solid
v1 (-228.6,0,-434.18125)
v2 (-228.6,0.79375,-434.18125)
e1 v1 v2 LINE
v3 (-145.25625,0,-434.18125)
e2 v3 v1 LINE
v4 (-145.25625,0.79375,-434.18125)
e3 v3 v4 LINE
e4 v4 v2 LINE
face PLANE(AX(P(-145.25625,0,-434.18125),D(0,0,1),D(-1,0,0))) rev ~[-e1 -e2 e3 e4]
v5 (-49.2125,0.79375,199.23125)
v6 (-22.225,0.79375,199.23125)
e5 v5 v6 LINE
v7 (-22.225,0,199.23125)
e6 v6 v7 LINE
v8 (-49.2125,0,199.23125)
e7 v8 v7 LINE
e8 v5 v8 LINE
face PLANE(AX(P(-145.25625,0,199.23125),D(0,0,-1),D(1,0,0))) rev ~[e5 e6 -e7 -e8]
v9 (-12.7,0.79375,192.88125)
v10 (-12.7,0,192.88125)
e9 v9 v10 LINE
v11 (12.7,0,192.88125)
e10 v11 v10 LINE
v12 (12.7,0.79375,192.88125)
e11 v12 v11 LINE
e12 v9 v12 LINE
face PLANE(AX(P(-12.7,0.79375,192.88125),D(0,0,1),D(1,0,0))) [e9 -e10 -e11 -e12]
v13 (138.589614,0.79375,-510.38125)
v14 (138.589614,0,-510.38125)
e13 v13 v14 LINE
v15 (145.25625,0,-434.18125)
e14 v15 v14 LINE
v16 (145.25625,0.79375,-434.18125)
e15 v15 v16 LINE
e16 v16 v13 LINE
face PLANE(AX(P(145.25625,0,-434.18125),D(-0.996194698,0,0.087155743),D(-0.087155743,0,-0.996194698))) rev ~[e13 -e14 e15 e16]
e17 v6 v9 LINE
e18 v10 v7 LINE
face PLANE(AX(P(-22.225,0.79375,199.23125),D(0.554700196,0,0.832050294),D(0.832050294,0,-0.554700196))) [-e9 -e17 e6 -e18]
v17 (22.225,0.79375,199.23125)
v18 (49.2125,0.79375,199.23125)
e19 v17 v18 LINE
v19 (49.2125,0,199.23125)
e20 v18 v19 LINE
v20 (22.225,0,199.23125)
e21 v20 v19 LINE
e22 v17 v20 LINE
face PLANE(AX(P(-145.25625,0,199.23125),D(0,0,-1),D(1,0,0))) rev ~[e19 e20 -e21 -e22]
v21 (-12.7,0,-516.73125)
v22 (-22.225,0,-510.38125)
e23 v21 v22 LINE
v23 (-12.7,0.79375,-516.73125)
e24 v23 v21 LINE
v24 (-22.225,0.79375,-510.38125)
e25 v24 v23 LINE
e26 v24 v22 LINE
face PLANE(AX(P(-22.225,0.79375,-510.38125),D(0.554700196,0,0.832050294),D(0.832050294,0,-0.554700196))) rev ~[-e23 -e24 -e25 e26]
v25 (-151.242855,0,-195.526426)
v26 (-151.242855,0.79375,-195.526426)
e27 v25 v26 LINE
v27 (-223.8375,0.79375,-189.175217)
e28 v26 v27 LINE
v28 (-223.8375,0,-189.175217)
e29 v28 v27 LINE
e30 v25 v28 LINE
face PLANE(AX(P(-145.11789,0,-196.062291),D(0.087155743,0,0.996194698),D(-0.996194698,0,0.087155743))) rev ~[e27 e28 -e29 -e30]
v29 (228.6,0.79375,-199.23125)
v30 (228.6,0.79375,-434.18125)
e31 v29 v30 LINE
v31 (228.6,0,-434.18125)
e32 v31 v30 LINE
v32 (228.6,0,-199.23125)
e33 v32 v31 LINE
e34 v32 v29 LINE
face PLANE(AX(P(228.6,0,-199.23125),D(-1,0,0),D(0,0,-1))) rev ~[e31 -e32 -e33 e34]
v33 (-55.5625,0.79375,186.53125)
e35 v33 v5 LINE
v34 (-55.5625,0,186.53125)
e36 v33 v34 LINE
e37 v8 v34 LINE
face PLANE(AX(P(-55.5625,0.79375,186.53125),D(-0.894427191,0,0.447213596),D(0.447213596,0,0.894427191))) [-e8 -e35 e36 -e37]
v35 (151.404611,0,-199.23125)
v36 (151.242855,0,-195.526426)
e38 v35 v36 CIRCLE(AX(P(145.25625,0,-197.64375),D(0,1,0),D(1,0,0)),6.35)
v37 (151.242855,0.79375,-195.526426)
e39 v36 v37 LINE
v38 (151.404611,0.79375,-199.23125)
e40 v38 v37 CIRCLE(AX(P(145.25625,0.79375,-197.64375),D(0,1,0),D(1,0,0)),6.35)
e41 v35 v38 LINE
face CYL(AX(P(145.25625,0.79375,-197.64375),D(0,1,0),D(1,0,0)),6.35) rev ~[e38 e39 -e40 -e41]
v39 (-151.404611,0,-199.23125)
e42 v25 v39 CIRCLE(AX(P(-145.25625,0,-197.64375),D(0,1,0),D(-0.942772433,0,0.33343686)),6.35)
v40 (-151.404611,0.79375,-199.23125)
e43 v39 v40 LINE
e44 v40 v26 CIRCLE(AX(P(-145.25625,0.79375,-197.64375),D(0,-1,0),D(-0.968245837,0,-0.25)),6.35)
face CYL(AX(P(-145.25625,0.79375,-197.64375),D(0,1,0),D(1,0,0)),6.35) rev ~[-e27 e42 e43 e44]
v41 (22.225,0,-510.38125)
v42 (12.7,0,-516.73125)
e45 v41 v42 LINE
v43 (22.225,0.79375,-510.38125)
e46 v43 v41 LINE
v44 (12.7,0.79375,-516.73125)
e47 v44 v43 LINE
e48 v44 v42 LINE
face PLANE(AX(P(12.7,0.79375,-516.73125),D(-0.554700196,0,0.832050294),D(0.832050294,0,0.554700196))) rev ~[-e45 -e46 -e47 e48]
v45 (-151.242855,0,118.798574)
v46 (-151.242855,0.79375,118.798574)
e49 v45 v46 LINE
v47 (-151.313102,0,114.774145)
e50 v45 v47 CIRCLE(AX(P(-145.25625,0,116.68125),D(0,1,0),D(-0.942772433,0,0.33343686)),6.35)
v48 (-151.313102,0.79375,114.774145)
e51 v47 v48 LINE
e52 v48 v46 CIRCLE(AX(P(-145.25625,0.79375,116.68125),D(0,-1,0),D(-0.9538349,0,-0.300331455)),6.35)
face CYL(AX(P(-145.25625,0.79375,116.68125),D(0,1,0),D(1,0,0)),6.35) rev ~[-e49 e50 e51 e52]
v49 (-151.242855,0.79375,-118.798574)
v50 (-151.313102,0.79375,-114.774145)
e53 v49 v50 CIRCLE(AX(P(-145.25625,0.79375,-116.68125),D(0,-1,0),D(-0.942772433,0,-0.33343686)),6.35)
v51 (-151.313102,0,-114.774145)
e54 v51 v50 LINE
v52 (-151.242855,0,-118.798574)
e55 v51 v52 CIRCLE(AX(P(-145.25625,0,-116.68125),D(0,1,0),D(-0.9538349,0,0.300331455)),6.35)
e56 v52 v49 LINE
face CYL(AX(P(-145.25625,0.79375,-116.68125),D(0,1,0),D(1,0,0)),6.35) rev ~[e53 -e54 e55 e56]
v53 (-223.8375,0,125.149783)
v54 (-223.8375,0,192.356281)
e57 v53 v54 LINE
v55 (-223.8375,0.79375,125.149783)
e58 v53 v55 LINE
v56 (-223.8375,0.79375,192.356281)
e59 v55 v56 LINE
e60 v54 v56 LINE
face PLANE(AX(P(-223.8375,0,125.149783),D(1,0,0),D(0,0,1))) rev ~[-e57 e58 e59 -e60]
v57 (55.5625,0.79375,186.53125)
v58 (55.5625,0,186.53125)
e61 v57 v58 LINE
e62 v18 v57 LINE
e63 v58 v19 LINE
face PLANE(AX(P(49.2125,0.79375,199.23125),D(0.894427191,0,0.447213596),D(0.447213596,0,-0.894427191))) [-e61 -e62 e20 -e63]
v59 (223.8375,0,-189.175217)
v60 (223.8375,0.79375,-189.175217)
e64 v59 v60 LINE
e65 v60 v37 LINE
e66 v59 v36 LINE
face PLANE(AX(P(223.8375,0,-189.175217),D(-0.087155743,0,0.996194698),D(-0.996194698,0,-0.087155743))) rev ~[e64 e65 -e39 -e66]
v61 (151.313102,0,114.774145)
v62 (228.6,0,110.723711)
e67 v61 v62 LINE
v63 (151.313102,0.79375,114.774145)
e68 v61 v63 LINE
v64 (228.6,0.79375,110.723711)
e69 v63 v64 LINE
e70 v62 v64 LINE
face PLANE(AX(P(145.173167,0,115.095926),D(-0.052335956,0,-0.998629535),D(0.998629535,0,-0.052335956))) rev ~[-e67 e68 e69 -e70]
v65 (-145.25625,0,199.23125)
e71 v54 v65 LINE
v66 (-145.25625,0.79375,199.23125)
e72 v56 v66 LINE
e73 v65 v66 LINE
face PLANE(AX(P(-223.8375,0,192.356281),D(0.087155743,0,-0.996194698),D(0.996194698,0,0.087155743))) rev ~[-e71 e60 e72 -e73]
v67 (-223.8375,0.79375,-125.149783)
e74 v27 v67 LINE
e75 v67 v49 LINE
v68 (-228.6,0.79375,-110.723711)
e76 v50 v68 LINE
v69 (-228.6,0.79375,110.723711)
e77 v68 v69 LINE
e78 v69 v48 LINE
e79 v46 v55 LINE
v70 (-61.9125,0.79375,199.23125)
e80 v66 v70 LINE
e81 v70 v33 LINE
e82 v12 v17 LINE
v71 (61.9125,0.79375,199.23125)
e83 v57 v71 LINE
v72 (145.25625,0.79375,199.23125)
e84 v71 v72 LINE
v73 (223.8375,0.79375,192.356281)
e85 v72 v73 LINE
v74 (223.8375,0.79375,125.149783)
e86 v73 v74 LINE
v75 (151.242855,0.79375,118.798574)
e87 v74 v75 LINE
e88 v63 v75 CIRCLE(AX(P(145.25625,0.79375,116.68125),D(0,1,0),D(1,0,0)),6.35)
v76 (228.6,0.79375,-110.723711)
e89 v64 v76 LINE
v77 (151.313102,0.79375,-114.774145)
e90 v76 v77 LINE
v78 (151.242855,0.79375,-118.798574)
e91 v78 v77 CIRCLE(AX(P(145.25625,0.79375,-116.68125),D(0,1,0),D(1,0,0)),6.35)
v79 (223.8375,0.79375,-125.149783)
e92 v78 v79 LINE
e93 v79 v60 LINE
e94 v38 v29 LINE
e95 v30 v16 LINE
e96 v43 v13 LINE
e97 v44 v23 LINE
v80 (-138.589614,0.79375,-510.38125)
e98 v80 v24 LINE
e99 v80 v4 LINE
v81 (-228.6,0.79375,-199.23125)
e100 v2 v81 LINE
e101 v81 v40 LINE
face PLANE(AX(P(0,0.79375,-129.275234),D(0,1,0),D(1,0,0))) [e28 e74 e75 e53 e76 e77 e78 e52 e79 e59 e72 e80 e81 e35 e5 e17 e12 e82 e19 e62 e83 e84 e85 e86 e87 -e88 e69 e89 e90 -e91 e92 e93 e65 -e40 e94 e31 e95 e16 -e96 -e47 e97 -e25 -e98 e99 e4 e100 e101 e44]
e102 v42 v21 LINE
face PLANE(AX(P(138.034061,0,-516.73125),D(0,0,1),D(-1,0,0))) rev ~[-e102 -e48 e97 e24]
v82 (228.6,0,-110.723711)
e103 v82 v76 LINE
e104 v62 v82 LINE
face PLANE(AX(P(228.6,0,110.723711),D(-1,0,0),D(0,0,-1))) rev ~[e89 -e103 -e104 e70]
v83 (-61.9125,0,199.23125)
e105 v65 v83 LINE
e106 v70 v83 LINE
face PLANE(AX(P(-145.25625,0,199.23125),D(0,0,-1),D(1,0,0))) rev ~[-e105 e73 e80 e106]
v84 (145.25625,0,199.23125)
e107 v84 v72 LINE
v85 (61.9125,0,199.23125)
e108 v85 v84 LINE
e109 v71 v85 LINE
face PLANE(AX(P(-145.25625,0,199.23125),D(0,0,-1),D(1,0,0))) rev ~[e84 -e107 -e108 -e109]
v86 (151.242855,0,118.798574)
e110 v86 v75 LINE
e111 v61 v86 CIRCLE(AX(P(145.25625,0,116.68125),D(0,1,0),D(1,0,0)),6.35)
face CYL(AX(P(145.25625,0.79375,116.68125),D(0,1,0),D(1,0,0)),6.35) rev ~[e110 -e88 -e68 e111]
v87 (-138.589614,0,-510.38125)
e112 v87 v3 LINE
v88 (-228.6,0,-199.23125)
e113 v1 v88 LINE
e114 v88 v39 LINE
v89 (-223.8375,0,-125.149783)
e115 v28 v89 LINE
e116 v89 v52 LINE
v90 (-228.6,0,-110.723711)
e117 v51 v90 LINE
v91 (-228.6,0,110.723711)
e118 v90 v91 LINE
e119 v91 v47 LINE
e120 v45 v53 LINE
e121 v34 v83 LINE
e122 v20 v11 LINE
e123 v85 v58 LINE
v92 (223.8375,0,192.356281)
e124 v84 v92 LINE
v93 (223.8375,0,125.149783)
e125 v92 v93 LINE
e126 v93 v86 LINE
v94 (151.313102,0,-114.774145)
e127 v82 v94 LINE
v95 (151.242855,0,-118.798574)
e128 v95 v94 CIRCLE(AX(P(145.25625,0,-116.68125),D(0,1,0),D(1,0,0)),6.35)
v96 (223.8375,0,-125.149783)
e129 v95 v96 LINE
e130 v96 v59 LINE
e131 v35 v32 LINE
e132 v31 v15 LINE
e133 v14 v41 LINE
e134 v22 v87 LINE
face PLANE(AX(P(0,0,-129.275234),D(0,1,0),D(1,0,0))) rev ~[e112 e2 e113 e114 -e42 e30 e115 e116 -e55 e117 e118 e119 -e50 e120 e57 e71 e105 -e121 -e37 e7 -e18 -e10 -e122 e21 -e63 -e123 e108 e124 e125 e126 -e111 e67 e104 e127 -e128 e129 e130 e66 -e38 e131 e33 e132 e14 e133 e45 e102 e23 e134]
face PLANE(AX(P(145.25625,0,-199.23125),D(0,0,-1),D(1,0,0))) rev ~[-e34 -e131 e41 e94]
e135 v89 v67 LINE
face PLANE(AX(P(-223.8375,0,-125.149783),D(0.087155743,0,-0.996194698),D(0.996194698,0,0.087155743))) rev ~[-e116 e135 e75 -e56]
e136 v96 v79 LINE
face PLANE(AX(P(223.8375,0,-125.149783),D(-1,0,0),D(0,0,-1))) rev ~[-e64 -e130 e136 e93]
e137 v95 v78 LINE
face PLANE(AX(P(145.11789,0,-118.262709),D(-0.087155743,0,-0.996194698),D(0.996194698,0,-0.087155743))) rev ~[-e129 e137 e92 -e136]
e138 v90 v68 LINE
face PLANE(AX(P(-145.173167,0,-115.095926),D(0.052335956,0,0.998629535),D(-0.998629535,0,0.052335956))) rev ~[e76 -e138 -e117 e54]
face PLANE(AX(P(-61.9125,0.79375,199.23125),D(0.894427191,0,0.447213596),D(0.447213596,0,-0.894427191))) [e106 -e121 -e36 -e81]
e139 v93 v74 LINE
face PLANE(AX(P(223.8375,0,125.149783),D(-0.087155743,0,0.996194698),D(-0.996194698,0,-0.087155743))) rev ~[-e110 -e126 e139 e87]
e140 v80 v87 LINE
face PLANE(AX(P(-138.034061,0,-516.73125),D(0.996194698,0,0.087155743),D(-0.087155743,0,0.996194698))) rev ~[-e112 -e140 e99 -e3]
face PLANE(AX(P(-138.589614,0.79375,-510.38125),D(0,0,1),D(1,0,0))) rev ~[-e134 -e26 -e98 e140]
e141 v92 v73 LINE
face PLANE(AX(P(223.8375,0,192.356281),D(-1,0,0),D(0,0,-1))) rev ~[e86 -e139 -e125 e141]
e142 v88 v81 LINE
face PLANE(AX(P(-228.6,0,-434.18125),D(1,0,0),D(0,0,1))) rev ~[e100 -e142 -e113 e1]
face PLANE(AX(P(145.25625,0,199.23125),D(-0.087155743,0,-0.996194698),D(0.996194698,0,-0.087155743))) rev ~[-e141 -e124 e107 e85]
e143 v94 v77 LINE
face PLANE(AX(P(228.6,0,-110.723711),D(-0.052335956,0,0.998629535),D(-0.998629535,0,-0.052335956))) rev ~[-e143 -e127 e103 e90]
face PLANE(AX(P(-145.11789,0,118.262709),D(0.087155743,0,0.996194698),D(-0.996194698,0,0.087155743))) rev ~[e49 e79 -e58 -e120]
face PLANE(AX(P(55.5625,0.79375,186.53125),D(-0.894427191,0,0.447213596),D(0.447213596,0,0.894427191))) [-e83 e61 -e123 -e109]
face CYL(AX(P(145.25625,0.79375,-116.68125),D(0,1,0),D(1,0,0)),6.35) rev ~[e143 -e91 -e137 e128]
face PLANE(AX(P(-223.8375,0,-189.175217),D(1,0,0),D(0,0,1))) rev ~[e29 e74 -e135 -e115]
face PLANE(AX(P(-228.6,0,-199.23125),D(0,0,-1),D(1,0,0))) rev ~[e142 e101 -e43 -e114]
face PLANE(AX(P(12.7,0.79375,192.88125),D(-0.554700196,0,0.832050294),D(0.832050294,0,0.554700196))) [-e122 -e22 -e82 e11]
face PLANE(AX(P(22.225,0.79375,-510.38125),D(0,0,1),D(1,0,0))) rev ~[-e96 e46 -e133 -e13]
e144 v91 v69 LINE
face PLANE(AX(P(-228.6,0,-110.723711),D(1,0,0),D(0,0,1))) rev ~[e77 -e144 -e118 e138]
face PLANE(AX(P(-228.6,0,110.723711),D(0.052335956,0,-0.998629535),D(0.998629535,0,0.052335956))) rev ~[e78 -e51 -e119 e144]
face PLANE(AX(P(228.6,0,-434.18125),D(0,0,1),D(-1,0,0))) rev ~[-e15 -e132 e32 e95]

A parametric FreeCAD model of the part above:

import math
import FreeCAD as App
import Part
import Sketcher
Q = App.Units.Quantity


def add_polygon(sketch, points):
    """Adds a closed chain of lines whose ends are joined by coincident constraints."""
    first, n = sketch.GeometryCount, len(points)
    for a, b in zip(points, points[1:] + points[:1]):
        sketch.addGeometry(Part.LineSegment(App.Vector(*a, 0), App.Vector(*b, 0)), False)
    for i in range(n):
        sketch.addConstraint(Sketcher.Constraint("Coincident", first + i, 2, first + (i + 1) % n, 1))

doc = App.newDocument("Part")
body = doc.addObject("PartDesign::Body", "Body")

# Sketch on XZ plane
sketch1 = body.newObject("Sketcher::SketchObject", "Sketch")
sketch1.AttachmentSupport = (doc.getObject("XZ_Plane"), [""])
sketch1.MapMode = "FlatFace"
sketch1.addGeometry(Part.LineSegment(App.Vector(145.3, -434.2, 0), App.Vector(138, -516.7, 0)), False)
sketch1.addGeometry(Part.LineSegment(App.Vector(138, -516.7, 0), App.Vector(-138, -516.7, 0)), False)
sketch1.addGeometry(Part.LineSegment(App.Vector(-138, -516.7, 0), App.Vector(-145.3, -434.2, 0)), False)
sketch1.addGeometry(Part.LineSegment(App.Vector(-145.3, -434.2, 0), App.Vector(-228.6, -434.2, 0)), False)
sketch1.addGeometry(Part.LineSegment(App.Vector(-228.6, -434.2, 0), App.Vector(-228.6, -199.2, 0)), False)
sketch1.addGeometry(Part.LineSegment(App.Vector(-228.6, -199.2, 0), App.Vector(-145.3, -199.2, 0)), False)
sketch1.addGeometry(Part.ArcOfCircle(Part.Circle(App.Vector(-145.3, -197.6, 0), App.Vector(0, 0, 1), 1.6), math.radians(-90), math.radians(85)), False)
sketch1.addGeometry(Part.LineSegment(App.Vector(-145.1, -196.1, 0), App.Vector(-223.8, -189.2, 0)), False)
sketch1.addGeometry(Part.LineSegment(App.Vector(-223.8, -189.2, 0), App.Vector(-223.8, -125.1, 0)), False)
sketch1.addGeometry(Part.LineSegment(App.Vector(-223.8, -125.1, 0), App.Vector(-145.1, -118.3, 0)), False)
sketch1.addGeometry(Part.ArcOfCircle(Part.Circle(App.Vector(-145.3, -116.7, 0), App.Vector(0, 0, 1), 1.6), math.radians(-85), math.radians(87)), False)
sketch1.addGeometry(Part.LineSegment(App.Vector(-145.2, -115.1, 0), App.Vector(-228.6, -110.7, 0)), False)
sketch1.addGeometry(Part.LineSegment(App.Vector(-228.6, -110.7, 0), App.Vector(-228.6, 110.7, 0)), False)
sketch1.addGeometry(Part.LineSegment(App.Vector(-228.6, 110.7, 0), App.Vector(-145.2, 115.1, 0)), False)
sketch1.addGeometry(Part.ArcOfCircle(Part.Circle(App.Vector(-145.3, 116.7, 0), App.Vector(0, 0, 1), 1.6), math.radians(-87), math.radians(85)), False)
sketch1.addGeometry(Part.LineSegment(App.Vector(-145.1, 118.3, 0), App.Vector(-223.8, 125.1, 0)), False)
sketch1.addGeometry(Part.LineSegment(App.Vector(-223.8, 125.1, 0), App.Vector(-223.8, 192.4, 0)), False)
sketch1.addGeometry(Part.LineSegment(App.Vector(-223.8, 192.4, 0), App.Vector(-145.3, 199.2, 0)), False)
sketch1.addGeometry(Part.LineSegment(App.Vector(-145.3, 199.2, 0), App.Vector(145.3, 199.2, 0)), False)
sketch1.addGeometry(Part.LineSegment(App.Vector(145.3, 199.2, 0), App.Vector(223.8, 192.4, 0)), False)
sketch1.addGeometry(Part.LineSegment(App.Vector(223.8, 192.4, 0), App.Vector(223.8, 125.1, 0)), False)
sketch1.addGeometry(Part.LineSegment(App.Vector(223.8, 125.1, 0), App.Vector(145.1, 118.3, 0)), False)
sketch1.addGeometry(Part.ArcOfCircle(Part.Circle(App.Vector(145.3, 116.7, 0), App.Vector(0, 0, 1), 1.6), math.radians(95), math.radians(267)), False)
sketch1.addGeometry(Part.LineSegment(App.Vector(145.2, 115.1, 0), App.Vector(228.6, 110.7, 0)), False)
sketch1.addGeometry(Part.LineSegment(App.Vector(228.6, 110.7, 0), App.Vector(228.6, -110.7, 0)), False)
sketch1.addGeometry(Part.LineSegment(App.Vector(228.6, -110.7, 0), App.Vector(145.2, -115.1, 0)), False)
sketch1.addGeometry(Part.ArcOfCircle(Part.Circle(App.Vector(145.3, -116.7, 0), App.Vector(0, 0, 1), 1.6), math.radians(93), math.radians(265)), False)
sketch1.addGeometry(Part.LineSegment(App.Vector(145.1, -118.3, 0), App.Vector(223.8, -125.1, 0)), False)
sketch1.addGeometry(Part.LineSegment(App.Vector(223.8, -125.1, 0), App.Vector(223.8, -189.2, 0)), False)
sketch1.addGeometry(Part.LineSegment(App.Vector(223.8, -189.2, 0), App.Vector(145.1, -196.1, 0)), False)
sketch1.addGeometry(Part.ArcOfCircle(Part.Circle(App.Vector(145.3, -197.6, 0), App.Vector(0, 0, 1), 1.6), math.radians(95), math.radians(270)), False)
sketch1.addGeometry(Part.LineSegment(App.Vector(145.3, -199.2, 0), App.Vector(228.6, -199.2, 0)), False)
sketch1.addGeometry(Part.LineSegment(App.Vector(228.6, -199.2, 0), App.Vector(228.6, -434.2, 0)), False)
sketch1.addGeometry(Part.LineSegment(App.Vector(228.6, -434.2, 0), App.Vector(145.3, -434.2, 0)), False)
sketch1.addConstraint(Sketcher.Constraint("Coincident", 0, 2, 1, 1))
sketch1.addConstraint(Sketcher.Constraint("Coincident", 1, 2, 2, 1))
sketch1.addConstraint(Sketcher.Constraint("Coincident", 2, 2, 3, 1))
sketch1.addConstraint(Sketcher.Constraint("Coincident", 3, 2, 4, 1))
sketch1.addConstraint(Sketcher.Constraint("Coincident", 4, 2, 5, 1))
sketch1.addConstraint(Sketcher.Constraint("Tangent", 5, 2, 6, 1))
sketch1.addConstraint(Sketcher.Constraint("Tangent", 6, 2, 7, 1))
sketch1.addConstraint(Sketcher.Constraint("Coincident", 7, 2, 8, 1))
sketch1.addConstraint(Sketcher.Constraint("Coincident", 8, 2, 9, 1))
sketch1.addConstraint(Sketcher.Constraint("Tangent", 9, 2, 10, 1))
sketch1.addConstraint(Sketcher.Constraint("Tangent", 10, 2, 11, 1))
sketch1.addConstraint(Sketcher.Constraint("Coincident", 11, 2, 12, 1))
sketch1.addConstraint(Sketcher.Constraint("Coincident", 12, 2, 13, 1))
sketch1.addConstraint(Sketcher.Constraint("Tangent", 13, 2, 14, 1))
sketch1.addConstraint(Sketcher.Constraint("Tangent", 14, 2, 15, 1))
sketch1.addConstraint(Sketcher.Constraint("Coincident", 15, 2, 16, 1))
sketch1.addConstraint(Sketcher.Constraint("Coincident", 16, 2, 17, 1))
sketch1.addConstraint(Sketcher.Constraint("Coincident", 17, 2, 18, 1))
sketch1.addConstraint(Sketcher.Constraint("Coincident", 18, 2, 19, 1))
sketch1.addConstraint(Sketcher.Constraint("Coincident", 19, 2, 20, 1))
sketch1.addConstraint(Sketcher.Constraint("Coincident", 20, 2, 21, 1))
sketch1.addConstraint(Sketcher.Constraint("Tangent", 21, 2, 22, 1))
sketch1.addConstraint(Sketcher.Constraint("Tangent", 22, 2, 23, 1))
sketch1.addConstraint(Sketcher.Constraint("Coincident", 23, 2, 24, 1))
sketch1.addConstraint(Sketcher.Constraint("Coincident", 24, 2, 25, 1))
sketch1.addConstraint(Sketcher.Constraint("Tangent", 25, 2, 26, 1))
sketch1.addConstraint(Sketcher.Constraint("Tangent", 26, 2, 27, 1))
sketch1.addConstraint(Sketcher.Constraint("Coincident", 27, 2, 28, 1))
sketch1.addConstraint(Sketcher.Constraint("Coincident", 28, 2, 29, 1))
sketch1.addConstraint(Sketcher.Constraint("Tangent", 29, 2, 30, 1))
sketch1.addConstraint(Sketcher.Constraint("Tangent", 30, 2, 31, 1))
sketch1.addConstraint(Sketcher.Constraint("Coincident", 31, 2, 32, 1))
sketch1.addConstraint(Sketcher.Constraint("Coincident", 32, 2, 33, 1))
sketch1.addConstraint(Sketcher.Constraint("Coincident", 33, 2, 0, 1))
sketch1.addConstraint(Sketcher.Constraint("Horizontal", 1))
sketch1.addConstraint(Sketcher.Constraint("Horizontal", 3))
sketch1.addConstraint(Sketcher.Constraint("Vertical", 4))
sketch1.addConstraint(Sketcher.Constraint("Horizontal", 5))
sketch1.addConstraint(Sketcher.Constraint("Vertical", 8))
sketch1.addConstraint(Sketcher.Constraint("Vertical", 12))
sketch1.addConstraint(Sketcher.Constraint("Vertical", 16))
sketch1.addConstraint(Sketcher.Constraint("Horizontal", 18))
sketch1.addConstraint(Sketcher.Constraint("Vertical", 20))
sketch1.addConstraint(Sketcher.Constraint("Vertical", 24))
sketch1.addConstraint(Sketcher.Constraint("Vertical", 28))
sketch1.addConstraint(Sketcher.Constraint("Horizontal", 31))
sketch1.addConstraint(Sketcher.Constraint("Vertical", 32))
sketch1.addConstraint(Sketcher.Constraint("Horizontal", 33))
sketch1.addConstraint(Sketcher.Constraint("Equal", 6, 10))
sketch1.addConstraint(Sketcher.Constraint("Equal", 10, 14))
sketch1.addConstraint(Sketcher.Constraint("Equal", 14, 22))
sketch1.addConstraint(Sketcher.Constraint("Equal", 22, 26))
sketch1.addConstraint(Sketcher.Constraint("Equal", 26, 30))
sketch1.addConstraint(Sketcher.Constraint("Symmetric", 10, 3, 22, 3, -1, 1))
sketch1.addConstraint(Sketcher.Constraint("Symmetric", 14, 3, 26, 3, -1, 1))
sketch1.addConstraint(Sketcher.Constraint("Symmetric", 5, 2, 18, 2, -1, 1))
sketch1.addConstraint(Sketcher.Constraint("Symmetric", 8, 2, 20, 2, -1, 1))
sketch1.addConstraint(Sketcher.Constraint("Symmetric", 11, 2, 23, 2, -1, 1))
sketch1.addConstraint(Sketcher.Constraint("Symmetric", 15, 2, 27, 2, -1, 1))
sketch1.addConstraint(Sketcher.Constraint("Symmetric", 17, 2, 30, 2, -1, 1))
sketch1.addConstraint(Sketcher.Constraint("Symmetric", 14, 3, 22, 3, -2))
sketch1.addConstraint(Sketcher.Constraint("Symmetric", 16, 2, 19, 2, -2))
sketch1.addConstraint(Sketcher.Constraint("Symmetric", 3, 2, 32, 2, -2))
sketch1.addConstraint(Sketcher.Constraint("Perpendicular", 0, 7))
sketch1.addConstraint(Sketcher.Constraint("Perpendicular", 2, 9))
sketch1.addConstraint(Sketcher.Constraint("Parallel", 7, 15))
sketch1.addConstraint(Sketcher.Constraint("Parallel", 9, 17))
sketch1.addConstraint(Sketcher.Constraint("Parallel", 15, 19))
sketch1.addConstraint(Sketcher.Constraint("Parallel", 13, 25))
sketch1.addConstraint(Sketcher.Constraint("Parallel", 21, 29))
sketch1.addConstraint(Sketcher.Constraint("Horizontal", 15, 2, 20, 2))
sketch1.addConstraint(Sketcher.Constraint("Horizontal", 12, 2, 23, 2))
sketch1.addConstraint(Sketcher.Constraint("Vertical", 6, 3, 10, 3))
sketch1.addConstraint(Sketcher.Constraint("Vertical", 14, 3, 2, 2))
sketch1.addConstraint(Sketcher.Constraint("Vertical", 4, 2, 11, 2))
sketch1.addConstraint(Sketcher.Constraint("Vertical", 30, 2, 33, 2))
sketch1.addConstraint(Sketcher.Constraint("DistanceX", 3, 2, -1, 1, Q("9 in")))
sketch1.addConstraint(Sketcher.Constraint("Angle", 0, Q("-95 deg")))
sketch1.addConstraint(Sketcher.Constraint("Angle", 11, Q("177 deg")))
sketch1.addConstraint(Sketcher.Constraint("Radius", 6, Q("0.0625 in")))
sketch1.addConstraint(Sketcher.Constraint("DistanceY", 4, 1, 4, 2, Q("9.25 in")))
sketch1.addConstraint(Sketcher.Constraint("DistanceY", 2, 2, 10, 3, Q("12.5 in")))
sketch1.addConstraint(Sketcher.Constraint("DistanceX", 3, 2, 3, 1, Q("3.28125 in")))
sketch1.addConstraint(Sketcher.Constraint("DistanceY", 0, 2, 26, 3, Q("15.75 in")))
sketch1.addConstraint(Sketcher.Constraint("DistanceY", 6, 3, -1, 1, Q("7.78125 in")))
sketch1.addConstraint(Sketcher.Constraint("DistanceX", 7, 2, -1, 1, Q("8.8125 in")))
pad1 = body.newObject("PartDesign::Pad", "Pad")
pad1.Profile = sketch1
pad1.Length = Q("0.03125 in")
pad1.Reversed = True

# Sketch on XZ plane
sketch2 = body.newObject("Sketcher::SketchObject", "Sketch001")
sketch2.AttachmentSupport = (doc.getObject("XZ_Plane"), [""])
sketch2.MapMode = "FlatFace"
sketch2.AttachmentOffset = App.Placement(App.Vector(0, 0, -0.03125 * 25.4), App.Rotation())
sketch2.addGeometry(Part.Circle(App.Vector(-145, -117, 0), App.Vector(0, 0, 1), 6), False)
sketch2.addConstraint(Sketcher.Constraint("Diameter", 0, Q("0.5 in")))
sketch2.addConstraint(Sketcher.Constraint("DistanceX", 0, 3, -1, 1, Q("5.71875 in")))
sketch2.addConstraint(Sketcher.Constraint("DistanceY", 0, 3, -1, 1, Q("4.59375 in")))
pocket1 = body.newObject("PartDesign::Pocket", "Pocket")
pocket1.Profile = sketch2
pocket1.Length = Q("0.03125 in")
pocket1.Reversed = True

# Sketch on XZ plane
sketch3 = body.newObject("Sketcher::SketchObject", "Sketch002")
sketch3.AttachmentSupport = (doc.getObject("XZ_Plane"), [""])
sketch3.MapMode = "FlatFace"
sketch3.AttachmentOffset = App.Placement(App.Vector(0, 0, -0.03125 * 25.4), App.Rotation())
sketch3.addGeometry(Part.Circle(App.Vector(-145, 117, 0), App.Vector(0, 0, 1), 6), False)
sketch3.addConstraint(Sketcher.Constraint("Diameter", 0, Q("0.5 in")))
sketch3.addConstraint(Sketcher.Constraint("DistanceX", 0, 3, -1, 1, Q("5.71875 in")))
sketch3.addConstraint(Sketcher.Constraint("DistanceY", -1, 1, 0, 3, Q("4.59375 in")))
pocket2 = body.newObject("PartDesign::Pocket", "Pocket001")
pocket2.Profile = sketch3
pocket2.Length = Q("0.03125 in")
pocket2.Reversed = True

# Sketch on XZ plane
sketch4 = body.newObject("Sketcher::SketchObject", "Sketch003")
sketch4.AttachmentSupport = (doc.getObject("XZ_Plane"), [""])
sketch4.MapMode = "FlatFace"
sketch4.AttachmentOffset = App.Placement(App.Vector(0, 0, -0.03125 * 25.4), App.Rotation())
sketch4.addGeometry(Part.Circle(App.Vector(145, 117, 0), App.Vector(0, 0, 1), 6), False)
sketch4.addConstraint(Sketcher.Constraint("Diameter", 0, Q("0.5 in")))
sketch4.addConstraint(Sketcher.Constraint("DistanceX", -1, 1, 0, 3, Q("5.71875 in")))
sketch4.addConstraint(Sketcher.Constraint("DistanceY", -1, 1, 0, 3, Q("4.59375 in")))
pocket3 = body.newObject("PartDesign::Pocket", "Pocket002")
pocket3.Profile = sketch4
pocket3.Length = Q("0.03125 in")
pocket3.Reversed = True

# Sketch on XZ plane
sketch5 = body.newObject("Sketcher::SketchObject", "Sketch004")
sketch5.AttachmentSupport = (doc.getObject("XZ_Plane"), [""])
sketch5.MapMode = "FlatFace"
sketch5.AttachmentOffset = App.Placement(App.Vector(0, 0, -0.03125 * 25.4), App.Rotation())
sketch5.addGeometry(Part.Circle(App.Vector(145, -117, 0), App.Vector(0, 0, 1), 6), False)
sketch5.addConstraint(Sketcher.Constraint("Diameter", 0, Q("0.5 in")))
sketch5.addConstraint(Sketcher.Constraint("DistanceX", -1, 1, 0, 3, Q("5.71875 in")))
sketch5.addConstraint(Sketcher.Constraint("DistanceY", 0, 3, -1, 1, Q("4.59375 in")))
pocket4 = body.newObject("PartDesign::Pocket", "Pocket003")
pocket4.Profile = sketch5
pocket4.Length = Q("0.03125 in")
pocket4.Reversed = True

# Sketch on XZ plane
sketch6 = body.newObject("Sketcher::SketchObject", "Sketch005")
sketch6.AttachmentSupport = (doc.getObject("XZ_Plane"), [""])
sketch6.MapMode = "FlatFace"
sketch6.AttachmentOffset = App.Placement(App.Vector(0, 0, -0.03125 * 25.4), App.Rotation())
sketch6.addGeometry(Part.Circle(App.Vector(-145, -198, 0), App.Vector(0, 0, 1), 6), False)
sketch6.addConstraint(Sketcher.Constraint("Diameter", 0, Q("0.5 in")))
sketch6.addConstraint(Sketcher.Constraint("DistanceX", 0, 3, -1, 1, Q("5.71875 in")))
sketch6.addConstraint(Sketcher.Constraint("DistanceY", 0, 3, -1, 1, Q("7.78125 in")))
pocket5 = body.newObject("PartDesign::Pocket", "Pocket004")
pocket5.Profile = sketch6
pocket5.Length = Q("0.03125 in")
pocket5.Reversed = True

# Sketch on XZ plane
sketch7 = body.newObject("Sketcher::SketchObject", "Sketch006")
sketch7.AttachmentSupport = (doc.getObject("XZ_Plane"), [""])
sketch7.MapMode = "FlatFace"
sketch7.AttachmentOffset = App.Placement(App.Vector(0, 0, -0.03125 * 25.4), App.Rotation())
sketch7.addGeometry(Part.Circle(App.Vector(145, -198, 0), App.Vector(0, 0, 1), 6), False)
sketch7.addConstraint(Sketcher.Constraint("Diameter", 0, Q("0.5 in")))
sketch7.addConstraint(Sketcher.Constraint("DistanceX", -1, 1, 0, 3, Q("5.71875 in")))
sketch7.addConstraint(Sketcher.Constraint("DistanceY", 0, 3, -1, 1, Q("7.78125 in")))
pocket6 = body.newObject("PartDesign::Pocket", "Pocket005")
pocket6.Profile = sketch7
pocket6.Length = Q("0.03125 in")
pocket6.Reversed = True

# Sketch on XZ plane
sketch8 = body.newObject("Sketcher::SketchObject", "Sketch007")
sketch8.AttachmentSupport = (doc.getObject("XZ_Plane"), [""])
sketch8.MapMode = "FlatFace"
sketch8.AttachmentOffset = App.Placement(App.Vector(0, 0, -0.03125 * 25.4), App.Rotation())
add_polygon(sketch8, [(-139, -510), (-22, -510), (-13, -517), (-138, -517)])  # lines 0-3
sketch8.addConstraint(Sketcher.Constraint("Horizontal", 0))
sketch8.addConstraint(Sketcher.Constraint("Horizontal", 2))
sketch8.addConstraint(Sketcher.Constraint("Angle", 3, Q("95 deg")))
sketch8.addConstraint(Sketcher.Constraint("DistanceX", 1, 2, -1, 1, Q("0.5 in")))
sketch8.addConstraint(Sketcher.Constraint("DistanceY", 1, 2, 0, 2, Q("0.25 in")))
sketch8.addConstraint(Sketcher.Constraint("DistanceX", 0, 2, -1, 1, Q("0.875 in")))
sketch8.addConstraint(Sketcher.Constraint("DistanceY", 0, 2, -1, 1, Q("20.09375 in")))
sketch8.addConstraint(Sketcher.Constraint("DistanceX", 2, 2, 2, 1, Q("125.334061 mm")))
pocket7 = body.newObject("PartDesign::Pocket", "Pocket006")
pocket7.Profile = sketch8
pocket7.Type = "UpToFirst"
pocket7.Reversed = True

# Sketch on XZ plane
sketch9 = body.newObject("Sketcher::SketchObject", "Sketch008")
sketch9.AttachmentSupport = (doc.getObject("XZ_Plane"), [""])
sketch9.MapMode = "FlatFace"
sketch9.AttachmentOffset = App.Placement(App.Vector(0, 0, -0.03125 * 25.4), App.Rotation())
add_polygon(sketch9, [(13, -517), (22, -510), (139, -510), (138, -517)])  # lines 0-3
sketch9.addConstraint(Sketcher.Constraint("Horizontal", 1))
sketch9.addConstraint(Sketcher.Constraint("Horizontal", 3))
sketch9.addConstraint(Sketcher.Constraint("Angle", 2, Q("-95 deg")))
sketch9.addConstraint(Sketcher.Constraint("DistanceX", -1, 1, 3, 2, Q("0.5 in")))
sketch9.addConstraint(Sketcher.Constraint("DistanceY", 2, 2, 1, 2, Q("0.25 in")))
sketch9.addConstraint(Sketcher.Constraint("DistanceX", -1, 1, 0, 2, Q("0.875 in")))
sketch9.addConstraint(Sketcher.Constraint("DistanceY", 0, 2, -1, 1, Q("20.09375 in")))
sketch9.addConstraint(Sketcher.Constraint("DistanceX", 3, 2, 3, 1, Q("125.334061 mm")))
pocket8 = body.newObject("PartDesign::Pocket", "Pocket007")
pocket8.Profile = sketch9
pocket8.Type = "UpToFirst"
pocket8.Reversed = True

# Sketch on XZ plane
sketch10 = body.newObject("Sketcher::SketchObject", "Sketch009")
sketch10.AttachmentSupport = (doc.getObject("XZ_Plane"), [""])
sketch10.MapMode = "FlatFace"
sketch10.AttachmentOffset = App.Placement(App.Vector(0, 0, -0.03125 * 25.4), App.Rotation())
add_polygon(sketch10, [(-56, 187), (-62, 199), (-49, 199)])  # lines 0-2
sketch10.addConstraint(Sketcher.Constraint("Horizontal", 1))
sketch10.addConstraint(Sketcher.Constraint("Equal", 0, 2))
sketch10.addConstraint(Sketcher.Constraint("DistanceX", 1, 1, 1, 2, Q("0.5 in")))
sketch10.addConstraint(Sketcher.Constraint("DistanceY", 2, 2, 0, 2, Q("0.5 in")))
sketch10.addConstraint(Sketcher.Constraint("DistanceX", 0, 2, -1, 1, Q("2.4375 in")))
sketch10.addConstraint(Sketcher.Constraint("DistanceY", -1, 1, 0, 2, Q("7.84375 in")))
pocket9 = body.newObject("PartDesign::Pocket", "Pocket008")
pocket9.Profile = sketch10
pocket9.Type = "UpToFirst"
pocket9.Reversed = True

# Sketch on XZ plane
sketch11 = body.newObject("Sketcher::SketchObject", "Sketch010")
sketch11.AttachmentSupport = (doc.getObject("XZ_Plane"), [""])
sketch11.MapMode = "FlatFace"
sketch11.AttachmentOffset = App.Placement(App.Vector(0, 0, -0.03125 * 25.4), App.Rotation())
add_polygon(sketch11, [(56, 187), (49, 199), (62, 199)])  # lines 0-2
sketch11.addConstraint(Sketcher.Constraint("Horizontal", 1))
sketch11.addConstraint(Sketcher.Constraint("Equal", 0, 2))
sketch11.addConstraint(Sketcher.Constraint("DistanceX", 1, 1, 1, 2, Q("0.5 in")))
sketch11.addConstraint(Sketcher.Constraint("DistanceY", 2, 2, 0, 2, Q("0.5 in")))
sketch11.addConstraint(Sketcher.Constraint("DistanceX", -1, 1, 0, 2, Q("1.9375 in")))
sketch11.addConstraint(Sketcher.Constraint("DistanceY", -1, 1, 0, 2, Q("7.84375 in")))
pocket10 = body.newObject("PartDesign::Pocket", "Pocket009")
pocket10.Profile = sketch11
pocket10.Type = "UpToFirst"
pocket10.Reversed = True

# Sketch on XZ plane
sketch12 = body.newObject("Sketcher::SketchObject", "Sketch011")
sketch12.AttachmentSupport = (doc.getObject("XZ_Plane"), [""])
sketch12.MapMode = "FlatFace"
sketch12.AttachmentOffset = App.Placement(App.Vector(0, 0, -0.03125 * 25.4), App.Rotation())
add_polygon(sketch12, [(-13, 193), (-22, 199), (22, 199), (13, 193)])  # lines 0-3
sketch12.addConstraint(Sketcher.Constraint("Horizontal", 1))
sketch12.addConstraint(Sketcher.Constraint("Horizontal", 3))
sketch12.addConstraint(Sketcher.Constraint("Equal", 0, 2))
sketch12.addConstraint(Sketcher.Constraint("DistanceX", 3, 2, 3, 1, Q("1 in")))
sketch12.addConstraint(Sketcher.Constraint("DistanceX", 1, 1, 1, 2, Q("1.75 in")))
sketch12.addConstraint(Sketcher.Constraint("DistanceX", -1, 1, 2, 2, Q("0.5 in")))
sketch12.addConstraint(Sketcher.Constraint("DistanceY", 2, 2, 1, 2, Q("0.25 in")))
sketch12.addConstraint(Sketcher.Constraint("DistanceY", -1, 1, 0, 2, Q("7.84375 in")))
pocket11 = body.newObject("PartDesign::Pocket", "Pocket010")
pocket11.Profile = sketch12
pocket11.Type = "UpToFirst"
pocket11.Reversed = True

doc.recompute()
